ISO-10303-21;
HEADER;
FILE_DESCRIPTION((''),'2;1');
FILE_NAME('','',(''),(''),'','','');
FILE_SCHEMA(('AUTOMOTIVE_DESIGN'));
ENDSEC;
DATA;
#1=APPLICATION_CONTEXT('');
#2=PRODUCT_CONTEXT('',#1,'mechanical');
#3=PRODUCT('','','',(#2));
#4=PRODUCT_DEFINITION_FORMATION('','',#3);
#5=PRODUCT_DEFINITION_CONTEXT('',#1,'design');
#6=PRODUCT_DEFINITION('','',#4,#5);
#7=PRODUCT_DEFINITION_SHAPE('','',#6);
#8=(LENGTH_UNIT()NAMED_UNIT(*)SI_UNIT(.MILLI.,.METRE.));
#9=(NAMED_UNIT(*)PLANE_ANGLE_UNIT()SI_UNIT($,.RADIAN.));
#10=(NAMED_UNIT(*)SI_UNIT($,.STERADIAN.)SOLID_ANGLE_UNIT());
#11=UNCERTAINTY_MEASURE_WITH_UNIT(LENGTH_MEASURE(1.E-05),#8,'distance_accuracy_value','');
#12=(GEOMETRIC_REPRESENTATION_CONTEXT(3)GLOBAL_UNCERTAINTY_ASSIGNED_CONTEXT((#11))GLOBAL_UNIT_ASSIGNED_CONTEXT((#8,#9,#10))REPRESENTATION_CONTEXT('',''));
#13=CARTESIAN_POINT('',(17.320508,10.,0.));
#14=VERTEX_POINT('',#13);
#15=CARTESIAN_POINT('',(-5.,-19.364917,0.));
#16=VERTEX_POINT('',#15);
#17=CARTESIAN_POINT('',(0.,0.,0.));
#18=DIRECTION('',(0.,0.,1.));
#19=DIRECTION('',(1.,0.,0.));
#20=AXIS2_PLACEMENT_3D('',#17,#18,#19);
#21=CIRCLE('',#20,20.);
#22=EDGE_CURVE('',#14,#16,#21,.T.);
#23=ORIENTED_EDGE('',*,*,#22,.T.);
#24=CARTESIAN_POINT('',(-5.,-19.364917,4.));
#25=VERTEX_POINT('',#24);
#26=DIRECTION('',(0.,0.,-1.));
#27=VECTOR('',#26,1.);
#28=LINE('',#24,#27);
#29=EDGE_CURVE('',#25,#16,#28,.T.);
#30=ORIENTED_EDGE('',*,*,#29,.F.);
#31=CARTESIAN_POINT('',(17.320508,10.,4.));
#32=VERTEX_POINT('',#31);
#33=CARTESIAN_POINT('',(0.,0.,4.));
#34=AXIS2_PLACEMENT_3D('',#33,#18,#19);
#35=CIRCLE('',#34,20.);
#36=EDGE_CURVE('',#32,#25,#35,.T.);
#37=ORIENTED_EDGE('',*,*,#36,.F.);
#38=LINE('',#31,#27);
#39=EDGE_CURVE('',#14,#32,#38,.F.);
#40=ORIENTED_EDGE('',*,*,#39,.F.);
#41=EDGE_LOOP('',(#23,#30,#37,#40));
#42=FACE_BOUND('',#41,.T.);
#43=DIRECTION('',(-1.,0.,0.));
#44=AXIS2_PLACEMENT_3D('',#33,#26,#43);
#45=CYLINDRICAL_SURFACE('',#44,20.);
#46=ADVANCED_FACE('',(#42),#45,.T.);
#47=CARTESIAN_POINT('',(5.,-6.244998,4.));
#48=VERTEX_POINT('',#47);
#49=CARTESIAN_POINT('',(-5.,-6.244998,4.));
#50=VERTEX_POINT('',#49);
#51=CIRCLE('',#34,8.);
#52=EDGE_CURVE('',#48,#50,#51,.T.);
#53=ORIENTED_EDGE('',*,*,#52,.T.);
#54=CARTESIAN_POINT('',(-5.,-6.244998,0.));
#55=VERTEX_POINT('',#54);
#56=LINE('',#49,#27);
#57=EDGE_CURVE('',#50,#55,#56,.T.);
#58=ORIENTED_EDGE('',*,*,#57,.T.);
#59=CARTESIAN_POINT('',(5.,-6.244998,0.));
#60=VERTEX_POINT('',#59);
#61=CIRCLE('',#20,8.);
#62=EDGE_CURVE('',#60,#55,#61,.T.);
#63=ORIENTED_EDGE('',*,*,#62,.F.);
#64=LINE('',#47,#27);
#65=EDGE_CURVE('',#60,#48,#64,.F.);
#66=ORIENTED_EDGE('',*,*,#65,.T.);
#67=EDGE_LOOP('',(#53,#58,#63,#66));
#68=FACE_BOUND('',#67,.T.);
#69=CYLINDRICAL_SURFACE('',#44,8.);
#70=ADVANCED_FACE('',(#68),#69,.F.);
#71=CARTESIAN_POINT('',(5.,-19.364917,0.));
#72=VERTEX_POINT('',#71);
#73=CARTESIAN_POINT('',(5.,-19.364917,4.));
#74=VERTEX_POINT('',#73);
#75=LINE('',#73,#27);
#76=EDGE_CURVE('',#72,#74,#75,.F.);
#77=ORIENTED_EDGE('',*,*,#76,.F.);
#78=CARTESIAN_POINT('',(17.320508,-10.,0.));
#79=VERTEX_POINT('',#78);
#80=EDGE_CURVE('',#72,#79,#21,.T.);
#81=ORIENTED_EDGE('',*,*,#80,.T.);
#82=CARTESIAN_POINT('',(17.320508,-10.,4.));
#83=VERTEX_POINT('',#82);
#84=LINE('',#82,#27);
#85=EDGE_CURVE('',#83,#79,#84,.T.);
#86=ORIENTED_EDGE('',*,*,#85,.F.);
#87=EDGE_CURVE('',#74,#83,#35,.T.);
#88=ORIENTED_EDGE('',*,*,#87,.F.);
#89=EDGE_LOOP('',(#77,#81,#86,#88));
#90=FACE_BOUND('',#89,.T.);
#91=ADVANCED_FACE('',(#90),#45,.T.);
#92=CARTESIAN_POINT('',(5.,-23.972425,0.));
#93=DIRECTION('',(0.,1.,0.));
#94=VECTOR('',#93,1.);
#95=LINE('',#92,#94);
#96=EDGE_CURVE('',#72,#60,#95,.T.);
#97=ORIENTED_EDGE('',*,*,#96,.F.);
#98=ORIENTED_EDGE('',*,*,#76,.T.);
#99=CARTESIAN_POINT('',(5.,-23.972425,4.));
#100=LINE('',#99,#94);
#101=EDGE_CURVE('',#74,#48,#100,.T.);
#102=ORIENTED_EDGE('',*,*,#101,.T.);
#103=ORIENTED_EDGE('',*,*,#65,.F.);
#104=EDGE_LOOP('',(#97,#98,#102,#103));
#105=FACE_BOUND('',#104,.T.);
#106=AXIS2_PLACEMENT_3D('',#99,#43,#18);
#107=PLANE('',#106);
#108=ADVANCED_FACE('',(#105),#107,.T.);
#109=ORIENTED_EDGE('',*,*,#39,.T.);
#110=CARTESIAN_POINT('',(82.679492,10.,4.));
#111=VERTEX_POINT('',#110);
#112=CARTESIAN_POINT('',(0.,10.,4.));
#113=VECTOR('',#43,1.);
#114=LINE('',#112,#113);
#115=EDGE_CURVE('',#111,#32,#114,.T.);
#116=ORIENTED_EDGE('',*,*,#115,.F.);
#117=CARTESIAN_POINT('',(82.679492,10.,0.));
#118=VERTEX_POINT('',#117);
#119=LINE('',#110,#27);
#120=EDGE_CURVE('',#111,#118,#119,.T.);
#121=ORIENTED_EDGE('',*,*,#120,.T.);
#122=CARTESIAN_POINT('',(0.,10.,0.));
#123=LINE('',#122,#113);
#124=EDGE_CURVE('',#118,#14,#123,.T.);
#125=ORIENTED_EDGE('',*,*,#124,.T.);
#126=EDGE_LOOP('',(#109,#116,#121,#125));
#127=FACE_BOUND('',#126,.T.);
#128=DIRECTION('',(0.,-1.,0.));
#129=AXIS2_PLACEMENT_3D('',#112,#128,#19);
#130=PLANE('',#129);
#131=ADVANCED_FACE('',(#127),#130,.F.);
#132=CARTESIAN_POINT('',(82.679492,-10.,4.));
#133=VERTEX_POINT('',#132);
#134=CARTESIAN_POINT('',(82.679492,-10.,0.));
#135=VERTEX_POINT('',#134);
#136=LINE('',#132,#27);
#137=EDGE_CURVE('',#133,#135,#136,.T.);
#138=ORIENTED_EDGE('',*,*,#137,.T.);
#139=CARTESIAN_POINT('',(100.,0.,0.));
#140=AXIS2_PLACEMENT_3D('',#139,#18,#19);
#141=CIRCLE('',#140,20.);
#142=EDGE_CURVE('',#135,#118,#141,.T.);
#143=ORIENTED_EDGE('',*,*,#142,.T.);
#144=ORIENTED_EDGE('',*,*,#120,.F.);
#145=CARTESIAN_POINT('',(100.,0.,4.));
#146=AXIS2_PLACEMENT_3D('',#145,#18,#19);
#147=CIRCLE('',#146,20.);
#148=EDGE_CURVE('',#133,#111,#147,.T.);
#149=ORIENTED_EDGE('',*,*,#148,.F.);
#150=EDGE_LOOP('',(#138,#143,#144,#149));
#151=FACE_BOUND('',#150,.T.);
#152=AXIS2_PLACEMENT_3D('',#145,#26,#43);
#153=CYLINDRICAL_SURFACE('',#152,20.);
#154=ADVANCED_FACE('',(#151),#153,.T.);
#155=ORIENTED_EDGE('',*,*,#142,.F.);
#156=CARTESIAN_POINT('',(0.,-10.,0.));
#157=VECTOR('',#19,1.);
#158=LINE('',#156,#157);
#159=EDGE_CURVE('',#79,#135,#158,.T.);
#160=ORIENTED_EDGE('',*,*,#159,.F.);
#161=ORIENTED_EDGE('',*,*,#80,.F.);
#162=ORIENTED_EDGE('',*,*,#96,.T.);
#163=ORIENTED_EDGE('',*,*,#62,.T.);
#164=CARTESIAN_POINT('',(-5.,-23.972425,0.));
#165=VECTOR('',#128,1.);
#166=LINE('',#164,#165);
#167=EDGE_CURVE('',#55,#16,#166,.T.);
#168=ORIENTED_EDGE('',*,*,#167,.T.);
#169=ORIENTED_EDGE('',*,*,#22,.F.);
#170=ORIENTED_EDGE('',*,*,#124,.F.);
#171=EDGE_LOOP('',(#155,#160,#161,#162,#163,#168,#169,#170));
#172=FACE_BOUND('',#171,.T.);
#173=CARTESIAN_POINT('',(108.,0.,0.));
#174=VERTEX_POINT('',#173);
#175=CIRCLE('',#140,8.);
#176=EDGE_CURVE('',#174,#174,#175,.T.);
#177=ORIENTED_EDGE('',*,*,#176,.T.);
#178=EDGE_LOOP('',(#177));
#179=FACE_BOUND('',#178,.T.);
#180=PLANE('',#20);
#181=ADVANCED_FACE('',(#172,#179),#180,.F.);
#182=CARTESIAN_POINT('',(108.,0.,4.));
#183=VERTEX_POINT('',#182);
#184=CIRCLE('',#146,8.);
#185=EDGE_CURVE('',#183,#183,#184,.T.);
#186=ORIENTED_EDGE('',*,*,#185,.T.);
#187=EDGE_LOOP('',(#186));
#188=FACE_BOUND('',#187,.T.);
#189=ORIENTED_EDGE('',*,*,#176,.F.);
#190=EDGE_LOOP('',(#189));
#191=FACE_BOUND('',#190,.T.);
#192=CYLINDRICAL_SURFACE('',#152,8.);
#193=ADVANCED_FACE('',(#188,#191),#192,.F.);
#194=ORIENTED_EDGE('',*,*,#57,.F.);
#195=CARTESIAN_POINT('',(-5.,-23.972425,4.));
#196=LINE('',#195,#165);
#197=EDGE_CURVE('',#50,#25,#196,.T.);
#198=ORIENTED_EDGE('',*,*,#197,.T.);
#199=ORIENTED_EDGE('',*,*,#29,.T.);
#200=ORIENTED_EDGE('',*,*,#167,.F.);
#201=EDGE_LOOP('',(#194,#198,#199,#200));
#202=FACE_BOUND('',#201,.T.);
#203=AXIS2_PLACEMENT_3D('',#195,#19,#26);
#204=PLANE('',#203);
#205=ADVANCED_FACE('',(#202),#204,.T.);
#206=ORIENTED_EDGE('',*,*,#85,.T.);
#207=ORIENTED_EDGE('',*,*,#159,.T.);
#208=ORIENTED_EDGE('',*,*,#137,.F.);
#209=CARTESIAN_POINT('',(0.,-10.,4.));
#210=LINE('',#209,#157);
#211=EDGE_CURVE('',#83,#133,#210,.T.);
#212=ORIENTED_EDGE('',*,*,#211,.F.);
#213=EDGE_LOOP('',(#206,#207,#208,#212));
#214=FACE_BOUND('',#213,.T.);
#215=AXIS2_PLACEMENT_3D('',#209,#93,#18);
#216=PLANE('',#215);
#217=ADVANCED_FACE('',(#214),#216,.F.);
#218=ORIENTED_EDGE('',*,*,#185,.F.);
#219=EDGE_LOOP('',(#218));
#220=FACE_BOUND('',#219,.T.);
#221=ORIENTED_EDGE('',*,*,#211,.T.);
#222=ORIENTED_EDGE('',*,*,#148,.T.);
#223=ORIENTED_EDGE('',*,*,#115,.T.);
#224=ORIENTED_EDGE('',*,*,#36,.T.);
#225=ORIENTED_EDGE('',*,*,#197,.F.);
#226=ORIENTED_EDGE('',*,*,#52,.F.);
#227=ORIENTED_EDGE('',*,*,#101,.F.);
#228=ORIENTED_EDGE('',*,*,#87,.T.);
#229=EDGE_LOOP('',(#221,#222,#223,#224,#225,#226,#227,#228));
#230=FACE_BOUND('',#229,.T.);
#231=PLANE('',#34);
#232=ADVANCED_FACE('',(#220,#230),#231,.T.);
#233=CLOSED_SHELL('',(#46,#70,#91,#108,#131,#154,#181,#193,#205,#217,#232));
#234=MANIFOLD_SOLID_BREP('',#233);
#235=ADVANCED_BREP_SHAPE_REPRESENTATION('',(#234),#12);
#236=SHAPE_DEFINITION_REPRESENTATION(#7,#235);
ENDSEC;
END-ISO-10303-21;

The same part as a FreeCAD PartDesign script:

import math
import FreeCAD as App
import Part
import Sketcher

V = App.Vector

doc = App.newDocument("Part")
body = doc.addObject("PartDesign::Body", "Body")

sketch1 = body.newObject("Sketcher::SketchObject", "Sketch")
sketch1.AttachmentSupport = (doc.getObject("XY_Plane"), [""])
sketch1.MapMode = "FlatFace"
sketch1.addGeometry(Part.Circle(V(0, 0, 0), V(0, 0, 1), 20), False)
sketch1.addConstraint(Sketcher.Constraint("Coincident", 0, 3, -1, 1))
sketch1.addConstraint(Sketcher.Constraint("Diameter", 0, 40.0))
pad1 = body.newObject("PartDesign::Pad", "Pad")
pad1.Profile = sketch1
pad1.Length = 4

sketch2 = body.newObject("Sketcher::SketchObject", "Sketch001")
sketch2.AttachmentSupport = (doc.getObject("XY_Plane"), [""])
sketch2.MapMode = "FlatFace"
sketch2.addGeometry(Part.ArcOfCircle(Part.Circle(V(100, 0, 0), V(0, 0, 1), 20), math.radians(0), math.radians(150)), False)
sketch2.addGeometry(Part.LineSegment(V(83, 10, 0), V(0, 10, 0)), False)
sketch2.addGeometry(Part.LineSegment(V(0, 10, 0), V(0, -10, 0)), False)
sketch2.addGeometry(Part.LineSegment(V(0, -10, 0), V(83, -10, 0)), False)
sketch2.addGeometry(Part.ArcOfCircle(Part.Circle(V(100, 0, 0), V(0, 0, 1), 20), math.radians(-150), math.radians(0)), False)
sketch2.addConstraint(Sketcher.Constraint("Coincident", 0, 2, 1, 1))
sketch2.addConstraint(Sketcher.Constraint("Coincident", 1, 2, 2, 1))
sketch2.addConstraint(Sketcher.Constraint("Coincident", 2, 2, 3, 1))
sketch2.addConstraint(Sketcher.Constraint("Coincident", 3, 2, 4, 1))
sketch2.addConstraint(Sketcher.Constraint("Tangent", 4, 2, 0, 1))
sketch2.addConstraint(Sketcher.Constraint("Horizontal", 1))
sketch2.addConstraint(Sketcher.Constraint("Vertical", 2))
sketch2.addConstraint(Sketcher.Constraint("Horizontal", 3))
sketch2.addConstraint(Sketcher.Constraint("Equal", 0, 4))
sketch2.addConstraint(Sketcher.Constraint("Symmetric", 1, 2, 2, 2, -1, 1))
sketch2.addConstraint(Sketcher.Constraint("PointOnObject", 0, 3, -1))
sketch2.addConstraint(Sketcher.Constraint("PointOnObject", 4, 2, -1))
sketch2.addConstraint(Sketcher.Constraint("Radius", 0, 20.0))
sketch2.addConstraint(Sketcher.Constraint("DistanceY", 2, 2, 2, 1, 20.0))
sketch2.addConstraint(Sketcher.Constraint("DistanceX", -1, 1, 0, 3, 100.0))
pad2 = body.newObject("PartDesign::Pad", "Pad001")
pad2.Profile = sketch2
pad2.Length = 4

sketch3 = body.newObject("Sketcher::SketchObject", "Sketch002")
sketch3.AttachmentSupport = (doc.getObject("XY_Plane"), [""])
sketch3.MapMode = "FlatFace"
sketch3.addGeometry(Part.Circle(V(0, 0, 0), V(0, 0, 1), 8), False)
sketch3.addConstraint(Sketcher.Constraint("Coincident", 0, 3, -1, 1))
sketch3.addConstraint(Sketcher.Constraint("Diameter", 0, 16.0))
pocket1 = body.newObject("PartDesign::Pocket", "Pocket")
pocket1.Profile = sketch3
pocket1.Length = 4
pocket1.Reversed = True

sketch4 = body.newObject("Sketcher::SketchObject", "Sketch003")
sketch4.AttachmentSupport = (doc.getObject("XY_Plane"), [""])
sketch4.MapMode = "FlatFace"
sketch4.addGeometry(Part.LineSegment(V(-5, -5, 0), V(-5, -24, 0)), False)
sketch4.addGeometry(Part.LineSegment(V(-5, -24, 0), V(5, -24, 0)), False)
sketch4.addGeometry(Part.LineSegment(V(5, -24, 0), V(5, -5, 0)), False)
sketch4.addGeometry(Part.LineSegment(V(5, -5, 0), V(-5, -5, 0)), False)
sketch4.addConstraint(Sketcher.Constraint("Coincident", 0, 2, 1, 1))
sketch4.addConstraint(Sketcher.Constraint("Coincident", 1, 2, 2, 1))
sketch4.addConstraint(Sketcher.Constraint("Coincident", 2, 2, 3, 1))
sketch4.addConstraint(Sketcher.Constraint("Coincident", 3, 2, 0, 1))
sketch4.addConstraint(Sketcher.Constraint("Vertical", 0))
sketch4.addConstraint(Sketcher.Constraint("Horizontal", 1))
sketch4.addConstraint(Sketcher.Constraint("Vertical", 2))
sketch4.addConstraint(Sketcher.Constraint("Horizontal", 3))
sketch4.addConstraint(Sketcher.Constraint("DistanceX", 1, 1, 1, 2, 10.0))
sketch4.addConstraint(Sketcher.Constraint("DistanceX", 0, 2, -1, 1, 5.0))
sketch4.addConstraint(Sketcher.Constraint("DistanceY", 0, 2, 0, 1, 19.132812))
sketch4.addConstraint(Sketcher.Constraint("DistanceY", 0, 2, -1, 1, 23.972425))
pocket2 = body.newObject("PartDesign::Pocket", "Pocket001")
pocket2.Profile = sketch4
pocket2.Length = 4
pocket2.Reversed = True

sketch5 = body.newObject("Sketcher::SketchObject", "Sketch004")
sketch5.AttachmentSupport = (doc.getObject("XY_Plane"), [""])
sketch5.MapMode = "FlatFace"
sketch5.addGeometry(Part.Circle(V(100, 0, 0), V(0, 0, 1), 8), False)
sketch5.addConstraint(Sketcher.Constraint("PointOnObject", 0, 3, -1))
sketch5.addConstraint(Sketcher.Constraint("Diameter", 0, 16.0))
sketch5.addConstraint(Sketcher.Constraint("DistanceX", -1, 1, 0, 3, 100.0))
pocket3 = body.newObject("PartDesign::Pocket", "Pocket002")
pocket3.Profile = sketch5
pocket3.Length = 4
pocket3.Reversed = True

doc.recompute()
